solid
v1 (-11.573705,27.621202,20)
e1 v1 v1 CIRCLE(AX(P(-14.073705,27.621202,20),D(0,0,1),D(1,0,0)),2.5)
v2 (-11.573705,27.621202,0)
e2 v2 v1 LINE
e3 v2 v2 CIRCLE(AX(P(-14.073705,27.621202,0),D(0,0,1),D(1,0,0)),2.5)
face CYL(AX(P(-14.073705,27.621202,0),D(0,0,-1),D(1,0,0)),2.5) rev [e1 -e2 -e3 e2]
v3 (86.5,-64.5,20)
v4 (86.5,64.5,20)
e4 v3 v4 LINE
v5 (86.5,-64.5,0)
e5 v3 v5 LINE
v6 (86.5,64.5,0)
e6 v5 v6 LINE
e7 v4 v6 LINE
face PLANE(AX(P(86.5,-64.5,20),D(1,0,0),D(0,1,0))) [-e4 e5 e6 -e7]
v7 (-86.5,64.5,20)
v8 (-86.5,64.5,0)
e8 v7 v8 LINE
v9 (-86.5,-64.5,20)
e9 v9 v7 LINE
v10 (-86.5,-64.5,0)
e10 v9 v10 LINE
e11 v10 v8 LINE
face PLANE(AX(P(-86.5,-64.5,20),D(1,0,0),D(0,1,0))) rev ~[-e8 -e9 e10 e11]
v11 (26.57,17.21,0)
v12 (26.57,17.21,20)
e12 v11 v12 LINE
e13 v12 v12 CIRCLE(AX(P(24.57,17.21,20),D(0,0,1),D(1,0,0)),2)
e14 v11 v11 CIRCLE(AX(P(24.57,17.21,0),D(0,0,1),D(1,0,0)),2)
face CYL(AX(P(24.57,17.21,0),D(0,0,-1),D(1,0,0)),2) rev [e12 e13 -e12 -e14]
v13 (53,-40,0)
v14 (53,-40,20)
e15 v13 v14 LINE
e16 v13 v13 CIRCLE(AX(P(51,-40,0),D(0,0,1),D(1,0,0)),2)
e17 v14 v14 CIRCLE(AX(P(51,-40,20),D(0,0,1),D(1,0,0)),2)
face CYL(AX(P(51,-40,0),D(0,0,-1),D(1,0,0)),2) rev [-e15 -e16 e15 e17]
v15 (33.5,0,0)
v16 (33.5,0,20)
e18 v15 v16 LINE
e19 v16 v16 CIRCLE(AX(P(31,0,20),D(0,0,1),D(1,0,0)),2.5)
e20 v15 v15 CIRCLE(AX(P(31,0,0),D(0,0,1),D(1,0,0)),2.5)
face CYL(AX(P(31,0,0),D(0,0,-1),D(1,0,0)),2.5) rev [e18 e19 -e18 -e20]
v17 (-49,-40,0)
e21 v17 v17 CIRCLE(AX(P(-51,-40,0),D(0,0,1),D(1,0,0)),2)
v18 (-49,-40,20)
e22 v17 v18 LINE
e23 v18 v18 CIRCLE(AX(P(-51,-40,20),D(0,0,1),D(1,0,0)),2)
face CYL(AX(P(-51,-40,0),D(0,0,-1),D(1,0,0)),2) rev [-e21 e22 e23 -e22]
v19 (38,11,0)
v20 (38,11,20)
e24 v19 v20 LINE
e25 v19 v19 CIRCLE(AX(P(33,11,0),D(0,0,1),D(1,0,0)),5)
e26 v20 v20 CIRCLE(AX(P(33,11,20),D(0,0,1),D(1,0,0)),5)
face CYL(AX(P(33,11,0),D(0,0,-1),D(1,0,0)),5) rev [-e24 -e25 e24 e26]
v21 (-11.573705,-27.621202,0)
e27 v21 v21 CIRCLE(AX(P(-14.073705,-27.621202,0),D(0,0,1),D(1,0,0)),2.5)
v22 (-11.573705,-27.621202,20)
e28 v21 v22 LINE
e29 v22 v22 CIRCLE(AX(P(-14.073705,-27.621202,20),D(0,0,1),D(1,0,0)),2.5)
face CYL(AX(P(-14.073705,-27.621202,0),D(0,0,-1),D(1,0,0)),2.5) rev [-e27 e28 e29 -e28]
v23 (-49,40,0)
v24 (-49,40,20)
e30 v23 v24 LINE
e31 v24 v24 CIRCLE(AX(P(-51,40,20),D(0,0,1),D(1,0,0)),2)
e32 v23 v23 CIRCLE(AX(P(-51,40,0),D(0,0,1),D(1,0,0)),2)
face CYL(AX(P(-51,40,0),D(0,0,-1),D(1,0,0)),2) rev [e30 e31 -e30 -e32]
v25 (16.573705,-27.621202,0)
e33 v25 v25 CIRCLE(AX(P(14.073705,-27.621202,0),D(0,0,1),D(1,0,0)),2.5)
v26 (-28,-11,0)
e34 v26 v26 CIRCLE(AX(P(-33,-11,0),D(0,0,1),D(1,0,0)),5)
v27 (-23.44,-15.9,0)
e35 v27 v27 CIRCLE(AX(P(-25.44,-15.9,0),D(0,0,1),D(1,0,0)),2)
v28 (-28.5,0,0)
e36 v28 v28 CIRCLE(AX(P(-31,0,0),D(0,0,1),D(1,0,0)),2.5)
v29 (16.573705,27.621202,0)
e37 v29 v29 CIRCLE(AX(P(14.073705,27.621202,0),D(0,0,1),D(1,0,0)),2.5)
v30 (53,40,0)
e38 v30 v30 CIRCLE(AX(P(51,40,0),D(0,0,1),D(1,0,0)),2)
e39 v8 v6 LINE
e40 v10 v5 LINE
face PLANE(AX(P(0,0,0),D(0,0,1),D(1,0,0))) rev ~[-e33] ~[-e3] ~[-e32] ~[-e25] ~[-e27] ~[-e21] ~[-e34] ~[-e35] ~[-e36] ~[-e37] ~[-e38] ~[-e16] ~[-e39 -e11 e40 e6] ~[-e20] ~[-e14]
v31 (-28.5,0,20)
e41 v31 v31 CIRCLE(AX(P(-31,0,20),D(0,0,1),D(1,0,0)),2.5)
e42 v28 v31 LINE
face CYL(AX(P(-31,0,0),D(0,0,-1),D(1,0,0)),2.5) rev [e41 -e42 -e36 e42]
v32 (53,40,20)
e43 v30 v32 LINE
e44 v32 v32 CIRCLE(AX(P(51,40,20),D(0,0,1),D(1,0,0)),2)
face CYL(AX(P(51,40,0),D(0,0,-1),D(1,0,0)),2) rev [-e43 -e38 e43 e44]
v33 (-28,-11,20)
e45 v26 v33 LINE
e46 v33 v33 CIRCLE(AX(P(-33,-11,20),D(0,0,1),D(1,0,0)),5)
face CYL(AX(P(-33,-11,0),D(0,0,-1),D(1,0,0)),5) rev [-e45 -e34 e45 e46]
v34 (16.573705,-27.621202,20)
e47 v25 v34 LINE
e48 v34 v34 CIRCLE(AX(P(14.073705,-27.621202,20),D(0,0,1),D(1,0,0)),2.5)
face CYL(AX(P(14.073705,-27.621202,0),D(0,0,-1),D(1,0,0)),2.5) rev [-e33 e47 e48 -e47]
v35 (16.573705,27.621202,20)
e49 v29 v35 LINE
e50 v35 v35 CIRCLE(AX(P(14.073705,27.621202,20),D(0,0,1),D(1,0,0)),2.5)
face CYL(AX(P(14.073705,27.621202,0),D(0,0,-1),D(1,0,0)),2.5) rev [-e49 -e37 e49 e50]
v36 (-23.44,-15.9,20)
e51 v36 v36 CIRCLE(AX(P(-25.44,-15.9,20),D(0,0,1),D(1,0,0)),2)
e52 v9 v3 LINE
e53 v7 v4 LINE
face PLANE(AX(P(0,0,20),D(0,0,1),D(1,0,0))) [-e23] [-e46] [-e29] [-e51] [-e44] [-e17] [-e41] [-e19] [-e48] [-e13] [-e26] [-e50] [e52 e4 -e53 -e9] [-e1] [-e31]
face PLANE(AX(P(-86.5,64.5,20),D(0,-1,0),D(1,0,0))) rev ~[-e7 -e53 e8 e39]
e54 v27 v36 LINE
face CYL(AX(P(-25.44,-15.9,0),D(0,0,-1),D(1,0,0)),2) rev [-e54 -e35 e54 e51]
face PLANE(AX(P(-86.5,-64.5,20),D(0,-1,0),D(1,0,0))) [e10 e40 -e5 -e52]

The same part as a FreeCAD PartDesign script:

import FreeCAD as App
import Part
import Sketcher

V = App.Vector
Q = App.Units.Quantity


def add_polygon(sketch, points):
    """Adds a closed chain of lines whose ends are joined by coincident constraints."""
    first, n = sketch.GeometryCount, len(points)
    for a, b in zip(points, points[1:] + points[:1]):
        sketch.addGeometry(Part.LineSegment(App.Vector(*a, 0), App.Vector(*b, 0)), False)
    for i in range(n):
        sketch.addConstraint(Sketcher.Constraint("Coincident", first + i, 2, first + (i + 1) % n, 1))

doc = App.newDocument("Part")
body = doc.addObject("PartDesign::Body", "Body")

sketch1 = body.newObject("Sketcher::SketchObject", "Sketch")
sketch1.AttachmentSupport = (doc.getObject("XY_Plane"), [""])
sketch1.MapMode = "FlatFace"
add_polygon(sketch1, [(-56, 45), (-56, -45), (56, -45), (56, 45)])
sketch1.addGeometry(Part.Circle(V(-51, -40, 0), V(0, 0, 1), 2), False)
sketch1.addGeometry(Part.Circle(V(-14.073705, -27.621202, 0), V(0, 0, 1), 2.5), False)
sketch1.addGeometry(Part.Circle(V(-33, -11, 0), V(0, 0, 1), 5), False)
sketch1.addGeometry(Part.Circle(V(-25.44, -15.9, 0), V(0, 0, 1), 2), False)
sketch1.addGeometry(Part.Circle(V(14.073705, -27.621202, 0), V(0, 0, 1), 2.5), False)
sketch1.addGeometry(Part.Circle(V(51, -40, 0), V(0, 0, 1), 2), False)
sketch1.addGeometry(Part.Circle(V(-31, 0, 0), V(0, 0, 1), 2.5), False)
sketch1.addGeometry(Part.Circle(V(-51, 40, 0), V(0, 0, 1), 2), False)
sketch1.addGeometry(Part.Circle(V(-14.073705, 27.621202, 0), V(0, 0, 1), 2.5), False)
sketch1.addGeometry(Part.Circle(V(24.57, 17.21, 0), V(0, 0, 1), 2), False)
sketch1.addGeometry(Part.Circle(V(31, 0, 0), V(0, 0, 1), 2.5), False)
sketch1.addGeometry(Part.Circle(V(33, 11, 0), V(0, 0, 1), 5), False)
sketch1.addGeometry(Part.Circle(V(14.073705, 27.621202, 0), V(0, 0, 1), 2.5), False)
sketch1.addGeometry(Part.Circle(V(51, 40, 0), V(0, 0, 1), 2), False)
sketch1.addConstraint(Sketcher.Constraint("Vertical", 0))
sketch1.addConstraint(Sketcher.Constraint("Horizontal", 1))
sketch1.addConstraint(Sketcher.Constraint("Vertical", 2))
sketch1.addConstraint(Sketcher.Constraint("Horizontal", 3))
sketch1.addConstraint(Sketcher.Constraint("Equal", 4, 7))
sketch1.addConstraint(Sketcher.Constraint("Equal", 5, 8))
sketch1.addConstraint(Sketcher.Constraint("Equal", 7, 9))
sketch1.addConstraint(Sketcher.Constraint("Equal", 8, 10))
sketch1.addConstraint(Sketcher.Constraint("Equal", 9, 11))
sketch1.addConstraint(Sketcher.Constraint("Equal", 10, 12))
sketch1.addConstraint(Sketcher.Constraint("Equal", 11, 13))
sketch1.addConstraint(Sketcher.Constraint("Equal", 12, 14))
sketch1.addConstraint(Sketcher.Constraint("Equal", 6, 15))
sketch1.addConstraint(Sketcher.Constraint("Equal", 14, 16))
sketch1.addConstraint(Sketcher.Constraint("Equal", 13, 17))
sketch1.addConstraint(Sketcher.Constraint("Symmetric", 9, 3, 11, 3, -1, 1))
sketch1.addConstraint(Sketcher.Constraint("Symmetric", 8, 3, 12, 3, -1, 1))
sketch1.addConstraint(Sketcher.Constraint("Symmetric", 10, 3, 14, 3, -1, 1))
sketch1.addConstraint(Sketcher.Constraint("Symmetric", 6, 3, 15, 3, -1, 1))
sketch1.addConstraint(Sketcher.Constraint("Symmetric", 5, 3, 16, 3, -1, 1))
sketch1.addConstraint(Sketcher.Constraint("Symmetric", 4, 3, 17, 3, -1, 1))
sketch1.addConstraint(Sketcher.Constraint("Symmetric", 0, 2, 2, 2, -1, 1))
sketch1.addConstraint(Sketcher.Constraint("Symmetric", 5, 3, 8, 3, -2))
sketch1.addConstraint(Sketcher.Constraint("Symmetric", 4, 3, 9, 3, -2))
sketch1.addConstraint(Sketcher.Constraint("PointOnObject", 10, 3, -1))
sketch1.addConstraint(Sketcher.Constraint("Diameter", 4, Q("4 mm")))
sketch1.addConstraint(Sketcher.Constraint("Diameter", 5, Q("5 mm")))
sketch1.addConstraint(Sketcher.Constraint("Diameter", 6, Q("10 mm")))
sketch1.addConstraint(Sketcher.Constraint("DistanceX", 1, 1, 1, 2, Q("112 mm")))
sketch1.addConstraint(Sketcher.Constraint("DistanceY", 0, 2, 0, 1, Q("90 mm")))
sketch1.addConstraint(Sketcher.Constraint("DistanceX", 4, 3, -1, 1, Q("51 mm")))
sketch1.addConstraint(Sketcher.Constraint("DistanceY", 4, 3, -1, 1, Q("40 mm")))
sketch1.addConstraint(Sketcher.Constraint("DistanceX", 6, 3, -1, 1, Q("33 mm")))
sketch1.addConstraint(Sketcher.Constraint("DistanceY", 6, 3, -1, 1, Q("11 mm")))
sketch1.addConstraint(Sketcher.Constraint("DistanceX", 10, 3, -1, 1, Q("31 mm")))
sketch1.addConstraint(Sketcher.Constraint("DistanceY", 7, 3, -1, 1, Q("15.9 mm")))
sketch1.addConstraint(Sketcher.Constraint("DistanceX", 7, 3, -1, 1, Q("25.44 mm")))
sketch1.addConstraint(Sketcher.Constraint("DistanceX", -1, 1, 13, 3, Q("24.57 mm")))
sketch1.addConstraint(Sketcher.Constraint("DistanceY", -1, 1, 13, 3, Q("17.21 mm")))
sketch1.addConstraint(Sketcher.Constraint("DistanceY", 5, 3, -1, 1, Q("27.621202 mm")))
sketch1.addConstraint(Sketcher.Constraint("DistanceX", 5, 3, 8, 3, Q("28.14741 mm")))
pad1 = body.newObject("PartDesign::Pad", "Pad")
pad1.Profile = sketch1
pad1.Length = 20

sketch2 = body.newObject("Sketcher::SketchObject", "Sketch001")
sketch2.AttachmentSupport = (doc.getObject("XY_Plane"), [""])
sketch2.MapMode = "FlatFace"
sketch2.AttachmentOffset = App.Placement(V(0, 0, 20), App.Rotation())
add_polygon(sketch2, [(-86.5, 64.5), (-86.5, -64.5), (86.5, -64.5), (86.5, 64.5)])
add_polygon(sketch2, [(56, -45), (-56, -45), (-56, 45), (56, 45)])
sketch2.addConstraint(Sketcher.Constraint("Vertical", 0))
sketch2.addConstraint(Sketcher.Constraint("Horizontal", 1))
sketch2.addConstraint(Sketcher.Constraint("Vertical", 2))
sketch2.addConstraint(Sketcher.Constraint("Horizontal", 3))
sketch2.addConstraint(Sketcher.Constraint("Horizontal", 4))
sketch2.addConstraint(Sketcher.Constraint("Vertical", 5))
sketch2.addConstraint(Sketcher.Constraint("Horizontal", 6))
sketch2.addConstraint(Sketcher.Constraint("Vertical", 7))
sketch2.addConstraint(Sketcher.Constraint("Symmetric", 0, 2, 2, 2, -1, 1))
sketch2.addConstraint(Sketcher.Constraint("Symmetric", 4, 2, 6, 2, -1, 1))
sketch2.addConstraint(Sketcher.Constraint("DistanceX", 1, 1, 1, 2, Q("173 mm")))
sketch2.addConstraint(Sketcher.Constraint("DistanceX", 4, 2, 4, 1, Q("112 mm")))
sketch2.addConstraint(Sketcher.Constraint("DistanceY", 0, 2, 0, 1, Q("129 mm")))
sketch2.addConstraint(Sketcher.Constraint("DistanceY", 5, 1, 5, 2, Q("90 mm")))
pad2 = body.newObject("PartDesign::Pad", "Pad001")
pad2.Profile = sketch2
pad2.Type = "UpToLast"
pad2.Reversed = True

doc.recompute()
